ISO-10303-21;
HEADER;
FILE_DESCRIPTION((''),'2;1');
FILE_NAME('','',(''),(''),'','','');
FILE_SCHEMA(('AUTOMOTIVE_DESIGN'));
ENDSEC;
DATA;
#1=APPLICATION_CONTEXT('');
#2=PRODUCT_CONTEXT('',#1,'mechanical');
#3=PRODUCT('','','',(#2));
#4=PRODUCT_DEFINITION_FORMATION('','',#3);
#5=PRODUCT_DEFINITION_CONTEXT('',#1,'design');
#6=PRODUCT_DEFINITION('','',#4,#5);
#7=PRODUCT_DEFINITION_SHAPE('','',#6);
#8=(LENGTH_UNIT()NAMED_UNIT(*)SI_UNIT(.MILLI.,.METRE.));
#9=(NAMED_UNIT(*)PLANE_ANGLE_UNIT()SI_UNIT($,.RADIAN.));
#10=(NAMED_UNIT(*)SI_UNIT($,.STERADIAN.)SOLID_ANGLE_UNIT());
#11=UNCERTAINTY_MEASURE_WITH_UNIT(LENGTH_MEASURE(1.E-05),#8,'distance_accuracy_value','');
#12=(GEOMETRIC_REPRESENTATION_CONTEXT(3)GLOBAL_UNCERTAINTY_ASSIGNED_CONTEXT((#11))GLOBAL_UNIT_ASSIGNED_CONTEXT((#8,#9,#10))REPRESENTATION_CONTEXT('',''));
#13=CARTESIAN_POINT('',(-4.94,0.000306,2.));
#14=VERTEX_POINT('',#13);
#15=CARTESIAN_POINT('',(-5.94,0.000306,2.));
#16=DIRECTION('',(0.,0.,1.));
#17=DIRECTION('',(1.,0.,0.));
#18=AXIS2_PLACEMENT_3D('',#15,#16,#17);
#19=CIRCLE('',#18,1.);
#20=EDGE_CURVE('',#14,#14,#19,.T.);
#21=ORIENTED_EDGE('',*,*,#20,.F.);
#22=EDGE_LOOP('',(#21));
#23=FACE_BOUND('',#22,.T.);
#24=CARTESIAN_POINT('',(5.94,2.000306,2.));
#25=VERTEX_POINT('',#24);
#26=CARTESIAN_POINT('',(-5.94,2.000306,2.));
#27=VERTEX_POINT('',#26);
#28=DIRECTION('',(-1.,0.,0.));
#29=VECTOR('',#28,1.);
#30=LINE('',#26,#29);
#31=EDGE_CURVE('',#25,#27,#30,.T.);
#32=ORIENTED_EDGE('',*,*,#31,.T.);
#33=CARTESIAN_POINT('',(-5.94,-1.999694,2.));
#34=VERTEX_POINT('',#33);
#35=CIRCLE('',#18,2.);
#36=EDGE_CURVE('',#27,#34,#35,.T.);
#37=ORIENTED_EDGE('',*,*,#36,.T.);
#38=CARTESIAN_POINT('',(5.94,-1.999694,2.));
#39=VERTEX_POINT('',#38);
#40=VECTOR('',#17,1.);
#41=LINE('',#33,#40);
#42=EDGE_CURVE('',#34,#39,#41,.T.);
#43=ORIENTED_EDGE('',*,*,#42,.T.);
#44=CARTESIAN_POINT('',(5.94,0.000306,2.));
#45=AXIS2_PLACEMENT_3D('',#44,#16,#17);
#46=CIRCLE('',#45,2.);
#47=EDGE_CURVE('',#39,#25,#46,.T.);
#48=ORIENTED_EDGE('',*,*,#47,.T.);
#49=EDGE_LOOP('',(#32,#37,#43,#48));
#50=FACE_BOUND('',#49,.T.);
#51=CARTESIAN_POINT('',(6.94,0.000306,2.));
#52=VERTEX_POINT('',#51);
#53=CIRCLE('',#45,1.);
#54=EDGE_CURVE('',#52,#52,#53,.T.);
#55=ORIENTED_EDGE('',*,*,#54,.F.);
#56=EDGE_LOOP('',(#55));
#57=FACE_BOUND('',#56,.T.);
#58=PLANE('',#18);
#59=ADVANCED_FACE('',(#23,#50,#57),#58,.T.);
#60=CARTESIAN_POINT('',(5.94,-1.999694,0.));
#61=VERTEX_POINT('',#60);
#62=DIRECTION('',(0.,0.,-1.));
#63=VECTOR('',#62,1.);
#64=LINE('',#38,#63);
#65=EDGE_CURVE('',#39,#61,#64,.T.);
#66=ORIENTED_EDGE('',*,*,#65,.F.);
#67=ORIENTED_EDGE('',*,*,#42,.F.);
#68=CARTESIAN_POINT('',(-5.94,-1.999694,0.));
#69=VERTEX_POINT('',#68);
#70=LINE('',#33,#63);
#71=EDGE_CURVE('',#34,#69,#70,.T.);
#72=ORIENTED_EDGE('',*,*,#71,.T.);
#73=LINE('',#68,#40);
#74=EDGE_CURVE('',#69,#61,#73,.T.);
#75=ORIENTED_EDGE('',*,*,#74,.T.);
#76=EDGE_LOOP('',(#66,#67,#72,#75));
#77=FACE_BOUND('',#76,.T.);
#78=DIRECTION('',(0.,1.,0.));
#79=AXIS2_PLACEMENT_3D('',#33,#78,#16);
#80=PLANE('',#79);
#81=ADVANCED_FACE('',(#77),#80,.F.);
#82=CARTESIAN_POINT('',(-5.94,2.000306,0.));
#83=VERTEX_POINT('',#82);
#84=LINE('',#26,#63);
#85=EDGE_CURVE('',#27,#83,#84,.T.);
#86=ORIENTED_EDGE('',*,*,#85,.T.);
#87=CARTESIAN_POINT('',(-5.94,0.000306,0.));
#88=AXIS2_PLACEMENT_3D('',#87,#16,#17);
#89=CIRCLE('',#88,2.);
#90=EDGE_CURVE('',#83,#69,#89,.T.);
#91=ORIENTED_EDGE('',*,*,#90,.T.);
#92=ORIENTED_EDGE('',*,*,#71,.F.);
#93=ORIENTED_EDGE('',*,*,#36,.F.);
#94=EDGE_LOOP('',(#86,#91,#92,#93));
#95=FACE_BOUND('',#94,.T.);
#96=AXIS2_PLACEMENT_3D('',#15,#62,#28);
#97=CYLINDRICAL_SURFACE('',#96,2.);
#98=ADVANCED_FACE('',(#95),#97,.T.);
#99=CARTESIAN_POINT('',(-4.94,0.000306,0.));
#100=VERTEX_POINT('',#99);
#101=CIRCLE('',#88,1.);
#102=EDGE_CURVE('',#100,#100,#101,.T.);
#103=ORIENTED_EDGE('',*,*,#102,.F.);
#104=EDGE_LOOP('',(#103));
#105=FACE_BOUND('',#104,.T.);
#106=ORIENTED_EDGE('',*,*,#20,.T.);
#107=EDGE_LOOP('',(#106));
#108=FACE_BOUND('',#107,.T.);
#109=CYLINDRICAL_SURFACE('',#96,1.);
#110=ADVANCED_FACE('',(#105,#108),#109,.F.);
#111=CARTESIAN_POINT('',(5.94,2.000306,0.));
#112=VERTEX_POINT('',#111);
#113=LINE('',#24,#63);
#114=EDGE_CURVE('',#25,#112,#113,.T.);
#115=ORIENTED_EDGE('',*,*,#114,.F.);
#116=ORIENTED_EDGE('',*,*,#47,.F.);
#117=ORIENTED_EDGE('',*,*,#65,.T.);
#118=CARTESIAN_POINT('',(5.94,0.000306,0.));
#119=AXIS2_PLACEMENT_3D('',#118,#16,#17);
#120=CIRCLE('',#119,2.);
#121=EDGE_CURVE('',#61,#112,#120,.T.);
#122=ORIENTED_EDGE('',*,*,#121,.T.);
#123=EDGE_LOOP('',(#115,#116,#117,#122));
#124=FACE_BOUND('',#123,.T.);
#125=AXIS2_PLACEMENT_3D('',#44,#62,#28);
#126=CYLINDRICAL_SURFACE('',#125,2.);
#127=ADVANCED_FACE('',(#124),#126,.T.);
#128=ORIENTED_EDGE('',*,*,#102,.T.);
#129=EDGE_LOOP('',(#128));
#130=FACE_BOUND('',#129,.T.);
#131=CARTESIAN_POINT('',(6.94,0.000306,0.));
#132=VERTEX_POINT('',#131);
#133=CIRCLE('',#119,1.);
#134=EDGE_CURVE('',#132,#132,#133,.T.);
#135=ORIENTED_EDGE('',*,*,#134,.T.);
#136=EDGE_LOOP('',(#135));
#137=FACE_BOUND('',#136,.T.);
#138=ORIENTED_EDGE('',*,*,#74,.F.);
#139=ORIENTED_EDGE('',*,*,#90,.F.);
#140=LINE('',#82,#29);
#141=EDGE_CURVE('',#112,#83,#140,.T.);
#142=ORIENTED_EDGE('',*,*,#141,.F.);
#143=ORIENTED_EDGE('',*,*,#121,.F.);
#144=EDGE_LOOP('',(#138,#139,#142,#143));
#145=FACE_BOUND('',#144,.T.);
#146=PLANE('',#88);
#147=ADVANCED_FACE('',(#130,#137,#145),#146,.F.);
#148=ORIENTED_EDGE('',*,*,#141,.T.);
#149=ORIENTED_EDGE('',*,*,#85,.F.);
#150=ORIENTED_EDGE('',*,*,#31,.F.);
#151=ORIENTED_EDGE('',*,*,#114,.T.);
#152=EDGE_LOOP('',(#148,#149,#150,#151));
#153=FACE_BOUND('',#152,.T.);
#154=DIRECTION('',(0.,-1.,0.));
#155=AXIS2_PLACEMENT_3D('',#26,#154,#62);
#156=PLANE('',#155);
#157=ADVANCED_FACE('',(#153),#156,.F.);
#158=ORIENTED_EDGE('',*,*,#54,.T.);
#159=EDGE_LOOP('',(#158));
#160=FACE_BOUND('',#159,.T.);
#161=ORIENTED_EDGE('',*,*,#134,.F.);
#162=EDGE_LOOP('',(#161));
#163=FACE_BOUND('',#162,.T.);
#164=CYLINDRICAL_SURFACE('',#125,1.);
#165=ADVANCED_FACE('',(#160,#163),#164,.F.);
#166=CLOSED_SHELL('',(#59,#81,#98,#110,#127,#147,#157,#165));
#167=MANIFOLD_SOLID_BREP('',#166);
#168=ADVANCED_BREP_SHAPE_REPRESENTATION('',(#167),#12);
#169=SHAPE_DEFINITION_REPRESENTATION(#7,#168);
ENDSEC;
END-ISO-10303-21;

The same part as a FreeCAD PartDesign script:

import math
import FreeCAD as App
import Part
import Sketcher

doc = App.newDocument("Part")
body = doc.addObject("PartDesign::Body", "Body")

# Sketch on XY plane
sketch1 = body.newObject("Sketcher::SketchObject", "Sketch")
sketch1.AttachmentSupport = (doc.getObject("XY_Plane"), [""])
sketch1.MapMode = "FlatFace"
sketch1.addGeometry([
    Part.LineSegment(App.Vector(5.94, 2.000306, 0), App.Vector(-5.94, 2.000306, 0)),  # 0
    Part.ArcOfCircle(Part.Circle(App.Vector(-5.94, 0.000306, 0), App.Vector(0, 0, 1), 2), math.radians(90), math.radians(270)),  # 1
    Part.LineSegment(App.Vector(-5.94, -1.999694, 0), App.Vector(5.94, -1.999694, 0)),  # 2
    Part.ArcOfCircle(Part.Circle(App.Vector(5.94, 0.000306, 0), App.Vector(0, 0, 1), 2), math.radians(-90), math.radians(90)),  # 3
    Part.Circle(App.Vector(5.94, 0.000306, 0), App.Vector(0, 0, 1), 1),  # 4
    Part.Circle(App.Vector(-5.94, 0.000306, 0), App.Vector(0, 0, 1), 1),  # 5
], False)
sketch1.addConstraint([
    Sketcher.Constraint("Tangent", 0, 2, 1, 1),
    Sketcher.Constraint("Tangent", 1, 2, 2, 1),
    Sketcher.Constraint("Tangent", 2, 2, 3, 1),
    Sketcher.Constraint("Tangent", 3, 2, 0, 1),
    Sketcher.Constraint("Horizontal", 0),
    Sketcher.Constraint("Horizontal", 2),
    Sketcher.Constraint("Coincident", 4, 3, 3, 3),
    Sketcher.Constraint("Coincident", 5, 3, 1, 3),
    Sketcher.Constraint("Equal", 4, 5),
    Sketcher.Constraint("Diameter", 4, 2.0),
    Sketcher.Constraint("Radius", 1, 2.0),
    Sketcher.Constraint("DistanceX", 0, 2, 0, 1, 11.88),
    Sketcher.Constraint("DistanceX", 1, 3, -1, 1, 5.94),
    Sketcher.Constraint("DistanceY", -1, 1, 1, 3, 0.000306),
])
pad1 = body.newObject("PartDesign::Pad", "Pad")
pad1.Profile = sketch1
pad1.Length = 2

doc.recompute()
